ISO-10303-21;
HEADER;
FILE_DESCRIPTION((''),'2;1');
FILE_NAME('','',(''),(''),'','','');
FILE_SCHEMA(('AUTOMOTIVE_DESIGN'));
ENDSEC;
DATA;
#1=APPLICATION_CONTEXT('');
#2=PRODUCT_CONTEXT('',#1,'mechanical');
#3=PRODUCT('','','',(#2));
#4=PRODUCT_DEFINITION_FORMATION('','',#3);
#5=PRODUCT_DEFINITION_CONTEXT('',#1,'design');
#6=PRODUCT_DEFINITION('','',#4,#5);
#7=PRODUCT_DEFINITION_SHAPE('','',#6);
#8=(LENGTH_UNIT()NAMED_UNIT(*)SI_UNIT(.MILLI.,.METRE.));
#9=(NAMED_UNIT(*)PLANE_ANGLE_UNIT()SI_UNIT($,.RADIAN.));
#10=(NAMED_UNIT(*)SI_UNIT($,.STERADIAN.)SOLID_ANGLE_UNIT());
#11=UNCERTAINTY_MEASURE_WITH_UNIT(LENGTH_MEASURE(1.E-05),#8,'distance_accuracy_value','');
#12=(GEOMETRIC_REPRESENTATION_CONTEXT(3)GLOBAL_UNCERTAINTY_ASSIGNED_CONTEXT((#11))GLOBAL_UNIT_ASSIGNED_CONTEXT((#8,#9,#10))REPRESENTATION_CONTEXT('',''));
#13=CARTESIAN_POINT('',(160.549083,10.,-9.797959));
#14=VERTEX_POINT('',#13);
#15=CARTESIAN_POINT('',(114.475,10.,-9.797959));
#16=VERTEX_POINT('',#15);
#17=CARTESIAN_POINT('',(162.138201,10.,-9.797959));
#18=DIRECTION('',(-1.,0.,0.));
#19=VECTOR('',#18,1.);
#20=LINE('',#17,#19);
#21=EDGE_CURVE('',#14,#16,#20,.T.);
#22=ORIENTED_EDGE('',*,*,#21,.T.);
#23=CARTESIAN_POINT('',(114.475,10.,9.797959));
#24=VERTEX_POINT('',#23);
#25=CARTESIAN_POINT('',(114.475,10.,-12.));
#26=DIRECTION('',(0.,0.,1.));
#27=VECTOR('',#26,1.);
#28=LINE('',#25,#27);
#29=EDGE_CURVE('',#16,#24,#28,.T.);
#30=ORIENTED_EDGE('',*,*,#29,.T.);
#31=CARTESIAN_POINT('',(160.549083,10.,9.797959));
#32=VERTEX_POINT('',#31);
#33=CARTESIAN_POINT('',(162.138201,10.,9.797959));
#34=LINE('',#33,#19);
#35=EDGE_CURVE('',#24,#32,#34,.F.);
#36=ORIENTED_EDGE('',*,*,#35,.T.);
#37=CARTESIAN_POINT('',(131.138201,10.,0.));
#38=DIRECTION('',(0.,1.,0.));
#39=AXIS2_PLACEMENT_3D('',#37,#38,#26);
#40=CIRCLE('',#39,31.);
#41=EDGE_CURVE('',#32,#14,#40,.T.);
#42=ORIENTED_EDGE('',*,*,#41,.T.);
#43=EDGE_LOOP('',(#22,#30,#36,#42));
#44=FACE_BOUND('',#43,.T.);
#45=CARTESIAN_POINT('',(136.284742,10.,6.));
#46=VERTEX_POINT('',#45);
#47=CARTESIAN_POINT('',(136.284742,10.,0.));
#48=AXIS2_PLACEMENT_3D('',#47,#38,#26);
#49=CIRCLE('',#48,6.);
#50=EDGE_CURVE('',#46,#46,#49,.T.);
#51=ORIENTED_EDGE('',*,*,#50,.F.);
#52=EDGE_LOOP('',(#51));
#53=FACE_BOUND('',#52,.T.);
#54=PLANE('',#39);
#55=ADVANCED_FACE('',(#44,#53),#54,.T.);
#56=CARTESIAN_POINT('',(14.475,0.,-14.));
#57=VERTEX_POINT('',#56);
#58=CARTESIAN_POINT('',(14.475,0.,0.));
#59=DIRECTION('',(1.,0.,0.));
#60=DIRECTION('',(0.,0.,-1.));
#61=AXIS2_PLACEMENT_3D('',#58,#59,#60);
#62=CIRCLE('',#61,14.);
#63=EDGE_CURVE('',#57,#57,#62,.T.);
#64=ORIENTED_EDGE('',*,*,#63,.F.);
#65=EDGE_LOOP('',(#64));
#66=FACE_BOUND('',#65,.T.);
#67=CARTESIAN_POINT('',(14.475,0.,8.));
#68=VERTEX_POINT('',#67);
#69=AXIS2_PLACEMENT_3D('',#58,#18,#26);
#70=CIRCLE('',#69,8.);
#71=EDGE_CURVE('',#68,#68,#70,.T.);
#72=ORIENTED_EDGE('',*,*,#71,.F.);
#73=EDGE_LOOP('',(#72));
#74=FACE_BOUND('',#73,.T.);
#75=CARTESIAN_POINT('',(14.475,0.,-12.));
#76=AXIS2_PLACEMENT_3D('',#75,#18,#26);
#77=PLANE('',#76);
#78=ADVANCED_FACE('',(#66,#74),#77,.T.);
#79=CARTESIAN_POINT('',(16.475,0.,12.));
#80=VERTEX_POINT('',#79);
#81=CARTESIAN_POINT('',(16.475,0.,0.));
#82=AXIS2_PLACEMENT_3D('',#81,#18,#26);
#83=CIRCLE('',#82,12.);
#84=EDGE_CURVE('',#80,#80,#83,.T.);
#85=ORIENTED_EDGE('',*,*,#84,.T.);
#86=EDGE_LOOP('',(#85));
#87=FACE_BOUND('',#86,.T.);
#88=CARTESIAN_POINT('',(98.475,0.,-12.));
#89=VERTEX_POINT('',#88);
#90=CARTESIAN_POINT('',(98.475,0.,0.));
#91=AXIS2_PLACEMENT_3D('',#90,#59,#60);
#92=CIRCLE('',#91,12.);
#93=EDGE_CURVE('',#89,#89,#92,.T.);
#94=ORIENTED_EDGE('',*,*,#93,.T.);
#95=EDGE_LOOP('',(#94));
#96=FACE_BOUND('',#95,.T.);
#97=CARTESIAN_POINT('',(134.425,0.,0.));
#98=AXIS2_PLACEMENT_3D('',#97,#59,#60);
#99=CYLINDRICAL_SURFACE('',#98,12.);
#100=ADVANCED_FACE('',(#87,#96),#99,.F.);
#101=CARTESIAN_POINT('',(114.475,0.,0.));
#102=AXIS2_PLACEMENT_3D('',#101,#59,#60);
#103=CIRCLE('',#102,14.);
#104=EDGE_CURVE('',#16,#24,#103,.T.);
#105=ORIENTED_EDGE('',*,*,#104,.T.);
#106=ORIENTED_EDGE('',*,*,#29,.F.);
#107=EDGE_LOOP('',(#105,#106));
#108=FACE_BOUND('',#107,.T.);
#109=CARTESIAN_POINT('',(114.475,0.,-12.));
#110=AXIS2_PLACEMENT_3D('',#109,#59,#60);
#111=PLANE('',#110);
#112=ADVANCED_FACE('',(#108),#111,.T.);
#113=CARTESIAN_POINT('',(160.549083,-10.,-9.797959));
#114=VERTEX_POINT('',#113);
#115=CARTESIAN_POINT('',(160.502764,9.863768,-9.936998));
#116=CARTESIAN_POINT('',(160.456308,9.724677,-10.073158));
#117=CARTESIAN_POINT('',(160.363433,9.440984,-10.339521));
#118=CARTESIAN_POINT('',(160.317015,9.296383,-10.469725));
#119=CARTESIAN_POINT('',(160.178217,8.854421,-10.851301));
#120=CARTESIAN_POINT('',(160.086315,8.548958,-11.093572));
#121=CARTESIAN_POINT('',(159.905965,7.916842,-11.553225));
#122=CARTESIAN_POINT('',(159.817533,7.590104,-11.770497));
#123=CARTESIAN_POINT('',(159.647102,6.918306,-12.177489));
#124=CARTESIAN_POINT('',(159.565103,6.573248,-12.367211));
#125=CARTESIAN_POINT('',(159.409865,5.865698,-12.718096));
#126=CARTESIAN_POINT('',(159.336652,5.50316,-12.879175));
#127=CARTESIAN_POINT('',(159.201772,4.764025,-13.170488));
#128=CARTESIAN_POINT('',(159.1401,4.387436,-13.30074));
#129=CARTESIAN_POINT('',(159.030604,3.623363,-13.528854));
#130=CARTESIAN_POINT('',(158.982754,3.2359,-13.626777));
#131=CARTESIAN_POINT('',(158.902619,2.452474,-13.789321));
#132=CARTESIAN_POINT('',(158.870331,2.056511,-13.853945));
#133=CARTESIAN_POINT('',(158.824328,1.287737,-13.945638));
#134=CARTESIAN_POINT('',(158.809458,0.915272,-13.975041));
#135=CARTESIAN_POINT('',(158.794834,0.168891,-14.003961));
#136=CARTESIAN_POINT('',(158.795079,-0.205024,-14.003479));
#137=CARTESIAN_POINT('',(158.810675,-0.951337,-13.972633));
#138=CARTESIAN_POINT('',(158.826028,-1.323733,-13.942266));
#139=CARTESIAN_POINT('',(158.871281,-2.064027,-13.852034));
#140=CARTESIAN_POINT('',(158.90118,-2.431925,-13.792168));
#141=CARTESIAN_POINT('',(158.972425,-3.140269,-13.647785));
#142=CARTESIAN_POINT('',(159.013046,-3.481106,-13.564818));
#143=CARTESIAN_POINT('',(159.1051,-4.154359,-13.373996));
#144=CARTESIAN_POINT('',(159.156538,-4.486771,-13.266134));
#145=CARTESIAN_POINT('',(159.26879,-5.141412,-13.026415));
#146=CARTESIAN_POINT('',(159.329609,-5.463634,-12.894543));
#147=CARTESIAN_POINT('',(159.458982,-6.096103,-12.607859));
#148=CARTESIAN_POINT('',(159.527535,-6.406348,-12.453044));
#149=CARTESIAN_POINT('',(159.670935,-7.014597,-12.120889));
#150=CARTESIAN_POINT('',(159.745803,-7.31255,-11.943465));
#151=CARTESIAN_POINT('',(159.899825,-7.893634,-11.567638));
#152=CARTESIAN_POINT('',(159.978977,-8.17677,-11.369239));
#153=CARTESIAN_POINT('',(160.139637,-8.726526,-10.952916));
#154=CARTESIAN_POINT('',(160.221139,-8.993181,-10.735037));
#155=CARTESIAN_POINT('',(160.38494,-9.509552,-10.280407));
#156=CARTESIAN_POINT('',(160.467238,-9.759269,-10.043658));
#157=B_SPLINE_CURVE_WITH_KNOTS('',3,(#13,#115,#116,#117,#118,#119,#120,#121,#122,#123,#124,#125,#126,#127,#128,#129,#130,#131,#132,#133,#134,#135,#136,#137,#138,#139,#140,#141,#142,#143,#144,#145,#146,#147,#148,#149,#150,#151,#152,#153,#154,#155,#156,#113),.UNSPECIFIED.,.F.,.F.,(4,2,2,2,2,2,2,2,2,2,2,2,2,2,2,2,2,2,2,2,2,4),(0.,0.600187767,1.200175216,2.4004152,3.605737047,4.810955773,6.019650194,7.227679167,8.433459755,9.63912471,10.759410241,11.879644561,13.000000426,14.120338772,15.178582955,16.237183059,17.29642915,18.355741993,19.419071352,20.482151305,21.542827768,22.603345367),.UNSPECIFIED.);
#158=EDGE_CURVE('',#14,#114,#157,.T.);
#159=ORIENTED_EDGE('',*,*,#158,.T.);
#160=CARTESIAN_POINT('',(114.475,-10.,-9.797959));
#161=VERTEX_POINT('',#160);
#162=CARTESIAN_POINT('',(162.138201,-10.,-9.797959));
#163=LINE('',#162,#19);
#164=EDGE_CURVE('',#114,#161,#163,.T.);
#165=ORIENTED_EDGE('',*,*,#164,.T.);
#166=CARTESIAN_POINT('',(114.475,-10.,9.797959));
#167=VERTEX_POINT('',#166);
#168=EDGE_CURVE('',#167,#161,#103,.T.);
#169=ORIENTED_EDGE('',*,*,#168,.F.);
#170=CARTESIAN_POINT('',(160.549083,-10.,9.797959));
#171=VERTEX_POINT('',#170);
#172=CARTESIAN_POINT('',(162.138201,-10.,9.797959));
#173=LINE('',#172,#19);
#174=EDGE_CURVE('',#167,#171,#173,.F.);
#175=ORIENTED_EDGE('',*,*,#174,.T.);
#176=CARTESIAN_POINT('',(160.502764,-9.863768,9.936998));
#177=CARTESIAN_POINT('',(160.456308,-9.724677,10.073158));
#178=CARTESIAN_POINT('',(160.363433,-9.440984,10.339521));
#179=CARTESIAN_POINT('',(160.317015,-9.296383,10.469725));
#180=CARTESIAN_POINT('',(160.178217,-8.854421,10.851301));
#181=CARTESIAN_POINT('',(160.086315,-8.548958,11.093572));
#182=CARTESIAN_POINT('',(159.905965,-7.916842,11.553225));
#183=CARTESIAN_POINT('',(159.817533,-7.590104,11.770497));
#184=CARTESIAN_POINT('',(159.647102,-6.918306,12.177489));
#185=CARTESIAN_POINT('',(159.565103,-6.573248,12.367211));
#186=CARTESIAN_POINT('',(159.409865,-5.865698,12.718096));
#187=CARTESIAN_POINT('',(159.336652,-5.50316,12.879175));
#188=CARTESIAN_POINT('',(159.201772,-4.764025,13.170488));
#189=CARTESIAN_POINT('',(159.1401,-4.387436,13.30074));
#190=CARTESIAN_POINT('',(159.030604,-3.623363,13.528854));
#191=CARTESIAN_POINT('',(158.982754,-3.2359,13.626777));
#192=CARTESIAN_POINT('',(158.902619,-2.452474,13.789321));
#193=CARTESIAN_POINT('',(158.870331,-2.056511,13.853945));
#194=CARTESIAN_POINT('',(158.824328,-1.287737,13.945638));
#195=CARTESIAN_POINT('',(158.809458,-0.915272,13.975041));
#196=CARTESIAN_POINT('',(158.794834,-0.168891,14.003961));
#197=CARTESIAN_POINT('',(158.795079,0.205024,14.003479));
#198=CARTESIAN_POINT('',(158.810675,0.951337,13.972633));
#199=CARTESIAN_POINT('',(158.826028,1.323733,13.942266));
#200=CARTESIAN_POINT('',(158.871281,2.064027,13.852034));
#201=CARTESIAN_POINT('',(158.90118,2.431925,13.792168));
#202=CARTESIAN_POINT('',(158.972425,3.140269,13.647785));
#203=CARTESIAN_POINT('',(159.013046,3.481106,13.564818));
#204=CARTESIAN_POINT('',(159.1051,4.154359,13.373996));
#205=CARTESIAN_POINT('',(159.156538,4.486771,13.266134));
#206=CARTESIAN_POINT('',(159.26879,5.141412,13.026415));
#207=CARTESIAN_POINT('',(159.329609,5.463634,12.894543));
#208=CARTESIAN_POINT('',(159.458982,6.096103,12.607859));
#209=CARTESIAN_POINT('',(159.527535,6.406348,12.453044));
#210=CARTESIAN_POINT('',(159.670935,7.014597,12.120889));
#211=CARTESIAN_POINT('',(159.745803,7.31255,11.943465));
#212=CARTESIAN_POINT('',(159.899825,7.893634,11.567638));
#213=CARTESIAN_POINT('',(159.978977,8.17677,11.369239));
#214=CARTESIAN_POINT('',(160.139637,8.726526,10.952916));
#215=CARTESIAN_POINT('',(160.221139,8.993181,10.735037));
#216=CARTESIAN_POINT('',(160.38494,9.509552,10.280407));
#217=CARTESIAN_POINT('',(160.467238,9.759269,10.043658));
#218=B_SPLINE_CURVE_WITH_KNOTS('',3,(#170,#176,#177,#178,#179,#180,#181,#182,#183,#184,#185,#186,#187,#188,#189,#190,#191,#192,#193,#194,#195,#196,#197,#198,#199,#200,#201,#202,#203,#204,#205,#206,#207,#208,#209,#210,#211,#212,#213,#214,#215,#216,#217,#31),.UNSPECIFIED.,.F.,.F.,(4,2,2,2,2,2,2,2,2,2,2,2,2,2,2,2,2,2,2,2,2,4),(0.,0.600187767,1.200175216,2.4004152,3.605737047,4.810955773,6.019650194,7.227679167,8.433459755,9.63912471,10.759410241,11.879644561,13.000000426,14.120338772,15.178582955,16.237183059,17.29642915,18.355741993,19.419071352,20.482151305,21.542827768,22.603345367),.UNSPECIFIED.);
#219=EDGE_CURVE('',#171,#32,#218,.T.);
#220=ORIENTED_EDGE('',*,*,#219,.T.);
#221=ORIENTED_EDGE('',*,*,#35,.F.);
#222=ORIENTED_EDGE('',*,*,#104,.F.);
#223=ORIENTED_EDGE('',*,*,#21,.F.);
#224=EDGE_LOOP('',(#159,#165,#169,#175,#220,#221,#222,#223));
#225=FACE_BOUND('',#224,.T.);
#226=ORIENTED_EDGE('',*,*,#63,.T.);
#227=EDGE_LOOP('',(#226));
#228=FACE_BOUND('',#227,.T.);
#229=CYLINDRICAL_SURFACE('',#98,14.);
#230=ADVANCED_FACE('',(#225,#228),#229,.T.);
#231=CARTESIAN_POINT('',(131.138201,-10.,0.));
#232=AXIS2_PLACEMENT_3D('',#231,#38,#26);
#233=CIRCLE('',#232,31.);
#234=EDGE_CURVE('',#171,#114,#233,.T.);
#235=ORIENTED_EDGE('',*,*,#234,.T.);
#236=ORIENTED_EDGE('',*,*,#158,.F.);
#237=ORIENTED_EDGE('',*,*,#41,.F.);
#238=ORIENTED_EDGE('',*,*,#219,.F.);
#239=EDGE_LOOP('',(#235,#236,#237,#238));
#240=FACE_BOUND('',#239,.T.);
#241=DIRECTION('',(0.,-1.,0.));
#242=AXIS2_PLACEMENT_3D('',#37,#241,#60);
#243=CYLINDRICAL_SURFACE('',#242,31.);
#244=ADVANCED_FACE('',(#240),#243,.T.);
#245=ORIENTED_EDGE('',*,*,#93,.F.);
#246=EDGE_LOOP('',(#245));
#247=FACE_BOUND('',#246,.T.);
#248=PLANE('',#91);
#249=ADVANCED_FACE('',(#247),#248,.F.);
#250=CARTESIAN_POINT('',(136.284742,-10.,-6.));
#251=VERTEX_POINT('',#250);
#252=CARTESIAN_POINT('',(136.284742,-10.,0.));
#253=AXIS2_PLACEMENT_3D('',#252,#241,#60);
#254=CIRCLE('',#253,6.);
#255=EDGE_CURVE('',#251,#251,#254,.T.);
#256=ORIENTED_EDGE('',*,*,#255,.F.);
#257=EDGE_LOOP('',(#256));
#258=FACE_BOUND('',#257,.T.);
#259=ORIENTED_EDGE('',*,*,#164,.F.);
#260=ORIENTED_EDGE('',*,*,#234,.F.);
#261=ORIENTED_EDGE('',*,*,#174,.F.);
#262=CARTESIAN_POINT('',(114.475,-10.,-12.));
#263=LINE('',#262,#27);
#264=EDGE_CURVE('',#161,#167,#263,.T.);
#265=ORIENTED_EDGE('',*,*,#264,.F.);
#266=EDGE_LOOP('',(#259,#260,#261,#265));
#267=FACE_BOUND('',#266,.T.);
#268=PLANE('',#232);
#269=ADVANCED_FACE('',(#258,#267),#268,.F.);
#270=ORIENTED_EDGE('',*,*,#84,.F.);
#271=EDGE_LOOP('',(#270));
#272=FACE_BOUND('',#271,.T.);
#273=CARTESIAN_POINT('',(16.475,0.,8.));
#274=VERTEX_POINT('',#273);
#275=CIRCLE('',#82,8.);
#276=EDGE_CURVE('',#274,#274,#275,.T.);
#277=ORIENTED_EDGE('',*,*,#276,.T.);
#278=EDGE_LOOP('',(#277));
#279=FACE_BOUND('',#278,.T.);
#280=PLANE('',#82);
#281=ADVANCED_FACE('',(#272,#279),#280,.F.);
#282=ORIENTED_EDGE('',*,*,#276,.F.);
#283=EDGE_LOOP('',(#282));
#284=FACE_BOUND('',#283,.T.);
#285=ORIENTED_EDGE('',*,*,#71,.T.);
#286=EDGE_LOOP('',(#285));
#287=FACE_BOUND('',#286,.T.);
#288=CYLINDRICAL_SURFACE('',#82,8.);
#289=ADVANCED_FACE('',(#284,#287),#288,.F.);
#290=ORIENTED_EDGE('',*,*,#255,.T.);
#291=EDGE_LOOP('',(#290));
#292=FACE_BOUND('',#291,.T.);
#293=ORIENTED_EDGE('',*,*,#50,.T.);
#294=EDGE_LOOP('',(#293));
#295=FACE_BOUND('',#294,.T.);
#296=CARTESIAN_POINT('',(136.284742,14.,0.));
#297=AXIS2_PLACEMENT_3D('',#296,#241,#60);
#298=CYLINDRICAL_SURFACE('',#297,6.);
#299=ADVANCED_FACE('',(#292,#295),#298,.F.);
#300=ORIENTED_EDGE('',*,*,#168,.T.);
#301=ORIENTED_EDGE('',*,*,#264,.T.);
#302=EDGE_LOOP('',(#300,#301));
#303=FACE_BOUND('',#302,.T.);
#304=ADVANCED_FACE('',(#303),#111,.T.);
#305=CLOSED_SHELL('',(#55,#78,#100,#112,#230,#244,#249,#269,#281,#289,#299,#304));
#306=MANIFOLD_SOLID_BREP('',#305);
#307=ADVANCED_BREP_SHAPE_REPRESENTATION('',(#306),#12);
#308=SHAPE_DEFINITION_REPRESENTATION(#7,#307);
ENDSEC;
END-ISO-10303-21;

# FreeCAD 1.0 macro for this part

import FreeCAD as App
import Part
import Sketcher
Q = App.Units.Quantity


def add_polygon(sketch, points):
    """Adds a closed chain of lines whose ends are joined by coincident constraints."""
    first, n = sketch.GeometryCount, len(points)
    for a, b in zip(points, points[1:] + points[:1]):
        sketch.addGeometry(Part.LineSegment(App.Vector(*a, 0), App.Vector(*b, 0)), False)
    for i in range(n):
        sketch.addConstraint(Sketcher.Constraint("Coincident", first + i, 2, first + (i + 1) % n, 1))

doc = App.newDocument("Part")
params = doc.addObject("Spreadsheet::Sheet", "Params")
for row, (alias, value) in enumerate([
    ("sketch1_width", "100 mm"),
    ("sketch1_height", "2 mm"),
    ("revolution_angle", "360 deg"),
    ("sketch2_diameter", "24 mm"),
    ("pad1_length", "16 mm"),
    ("sketch3_diameter", "62 mm"),
    ("pad2_length", "20 mm"),
    ("sketch4_diameter", "28 mm"),
    ("sketch5_diameter", "12 mm"),
    ("sketch6_diameter", "24 mm"),
    ("sketch6_diameter2", "16 mm"),
    ("pad3_length", "2 mm"),
], start=1):
    params.set(f"A{row}", alias)
    params.set(f"B{row}", "=" + value)
    params.setAlias(f"B{row}", alias)

body = doc.addObject("PartDesign::Body", "Body")

# Sketch on XZ plane
sketch1 = doc.addObject("Sketcher::SketchObject", "Sketch")
body.addObject(sketch1)
sketch1.AttachmentSupport = (doc.XZ_Plane, [""])
sketch1.MapMode = "FlatFace"
add_polygon(sketch1, [(14.475, -14), (14.475, -12), (114.475, -12), (114.475, -14)])  # lines 0-3
sketch1.addConstraint(Sketcher.Constraint("Vertical", 0))
sketch1.addConstraint(Sketcher.Constraint("Horizontal", 1))
sketch1.addConstraint(Sketcher.Constraint("Vertical", 2))
sketch1.addConstraint(Sketcher.Constraint("Horizontal", 3))
sketch1.addConstraint(Sketcher.Constraint("DistanceX", 1, 1, 1, 2, Q("100 mm")))
sketch1.addConstraint(Sketcher.Constraint("DistanceY", 0, 1, 0, 2, Q("2 mm")))
sketch1.addConstraint(Sketcher.Constraint("DistanceY", 0, 2, -1, 1, Q("12 mm")))
sketch1.addConstraint(Sketcher.Constraint("DistanceX", -1, 1, 0, 2, Q("14.475 mm")))
sketch1.setExpression("Constraints[8]", "Params.sketch1_width")
sketch1.setExpression("Constraints[9]", "Params.sketch1_height")
revolution = doc.addObject("PartDesign::Revolution", "Revolution")
body.addObject(revolution)
revolution.Profile = sketch1
revolution.ReferenceAxis = (sketch1, ["H_Axis"])
revolution.setExpression("Angle", "Params.revolution_angle")

# Sketch on YZ plane
sketch2 = doc.addObject("Sketcher::SketchObject", "Sketch001")
body.addObject(sketch2)
sketch2.AttachmentSupport = (doc.YZ_Plane, [""])
sketch2.MapMode = "FlatFace"
sketch2.AttachmentOffset = App.Placement(App.Vector(0, 0, 98.475), App.Rotation())
sketch2.addGeometry(Part.Circle(App.Vector(0, 0, 0), App.Vector(0, 0, 1), 12), False)
sketch2.addConstraint(Sketcher.Constraint("Coincident", 0, 3, -1, 1))
sketch2.addConstraint(Sketcher.Constraint("Diameter", 0, Q("24 mm")))
sketch2.setExpression("Constraints[1]", "Params.sketch2_diameter")
pad1 = doc.addObject("PartDesign::Pad", "Pad")
body.addObject(pad1)
pad1.Profile = sketch2
pad1.setExpression("Length", "Params.pad1_length")

# Sketch on XZ plane
sketch3 = doc.addObject("Sketcher::SketchObject", "Sketch002")
body.addObject(sketch3)
sketch3.AttachmentSupport = (doc.XZ_Plane, [""])
sketch3.MapMode = "FlatFace"
sketch3.addGeometry(Part.Circle(App.Vector(131.138201, 0, 0), App.Vector(0, 0, 1), 31), False)
sketch3.addConstraint(Sketcher.Constraint("PointOnObject", 0, 3, -1))
sketch3.addConstraint(Sketcher.Constraint("Diameter", 0, Q("62 mm")))
sketch3.addConstraint(Sketcher.Constraint("DistanceX", -1, 1, 0, 3, Q("131.138201 mm")))
sketch3.setExpression("Constraints[1]", "Params.sketch3_diameter")
pad2 = doc.addObject("PartDesign::Pad", "Pad001")
body.addObject(pad2)
pad2.Profile = sketch3
pad2.setExpression("Length", "Params.pad2_length")
pad2.Midplane = True

# Sketch on YZ plane
sketch4 = doc.addObject("Sketcher::SketchObject", "Sketch003")
body.addObject(sketch4)
sketch4.AttachmentSupport = (doc.YZ_Plane, [""])
sketch4.MapMode = "FlatFace"
sketch4.AttachmentOffset = App.Placement(App.Vector(0, 0, 14.475), App.Rotation())
add_polygon(sketch4, [(31.258, -48.258), (-31.258, -48.258), (-31.258, 48.258), (31.258, 48.258)])  # lines 0-3
sketch4.addGeometry(Part.Circle(App.Vector(0, 0, 0), App.Vector(0, 0, 1), 14), False)  # 4
sketch4.addConstraint(Sketcher.Constraint("Horizontal", 0))
sketch4.addConstraint(Sketcher.Constraint("Vertical", 1))
sketch4.addConstraint(Sketcher.Constraint("Horizontal", 2))
sketch4.addConstraint(Sketcher.Constraint("Vertical", 3))
sketch4.addConstraint(Sketcher.Constraint("Coincident", 4, 3, -1, 1))
sketch4.addConstraint(Sketcher.Constraint("Symmetric", 0, 2, 2, 2, -1, 1))
sketch4.addConstraint(Sketcher.Constraint("Diameter", 4, Q("28 mm")))
sketch4.addConstraint(Sketcher.Constraint("DistanceX", 0, 2, 0, 1, Q("62.516 mm")))
sketch4.addConstraint(Sketcher.Constraint("DistanceY", 1, 1, 1, 2, Q("96.516 mm")))
sketch4.setExpression("Constraints[10]", "Params.sketch4_diameter")
pocket1 = doc.addObject("PartDesign::Pocket", "Pocket")
body.addObject(pocket1)
pocket1.Profile = sketch4
pocket1.Type = "ThroughAll"
pocket1.Reversed = True

# Sketch on XZ plane
sketch5 = doc.addObject("Sketcher::SketchObject", "Sketch004")
body.addObject(sketch5)
sketch5.AttachmentSupport = (doc.XZ_Plane, [""])
sketch5.MapMode = "FlatFace"
sketch5.AttachmentOffset = App.Placement(App.Vector(0, 0, 10), App.Rotation())
sketch5.addGeometry(Part.Circle(App.Vector(136.284742, 0, 0), App.Vector(0, 0, 1), 6), False)
sketch5.addConstraint(Sketcher.Constraint("PointOnObject", 0, 3, -1))
sketch5.addConstraint(Sketcher.Constraint("Diameter", 0, Q("12 mm")))
sketch5.addConstraint(Sketcher.Constraint("DistanceX", -1, 1, 0, 3, Q("136.284742 mm")))
sketch5.setExpression("Constraints[1]", "Params.sketch5_diameter")
pocket2 = doc.addObject("PartDesign::Pocket", "Pocket001")
body.addObject(pocket2)
pocket2.Profile = sketch5
pocket2.Type = "ThroughAll"

# Sketch on YZ plane
sketch6 = doc.addObject("Sketcher::SketchObject", "Sketch005")
body.addObject(sketch6)
sketch6.AttachmentSupport = (doc.YZ_Plane, [""])
sketch6.MapMode = "FlatFace"
sketch6.AttachmentOffset = App.Placement(App.Vector(0, 0, 14.475), App.Rotation())
sketch6.addGeometry(Part.Circle(App.Vector(0, 0, 0), App.Vector(0, 0, 1), 12), False)
sketch6.addGeometry(Part.Circle(App.Vector(0, 0, 0), App.Vector(0, 0, 1), 8), False)
sketch6.addConstraint(Sketcher.Constraint("Coincident", 0, 3, -1, 1))
sketch6.addConstraint(Sketcher.Constraint("Coincident", 1, 3, -1, 1))
sketch6.addConstraint(Sketcher.Constraint("Diameter", 0, Q("24 mm")))
sketch6.addConstraint(Sketcher.Constraint("Diameter", 1, Q("16 mm")))
sketch6.setExpression("Constraints[2]", "Params.sketch6_diameter")
sketch6.setExpression("Constraints[3]", "Params.sketch6_diameter2")
pad3 = doc.addObject("PartDesign::Pad", "Pad002")
body.addObject(pad3)
pad3.Profile = sketch6
pad3.setExpression("Length", "Params.pad3_length")

doc.recompute()
